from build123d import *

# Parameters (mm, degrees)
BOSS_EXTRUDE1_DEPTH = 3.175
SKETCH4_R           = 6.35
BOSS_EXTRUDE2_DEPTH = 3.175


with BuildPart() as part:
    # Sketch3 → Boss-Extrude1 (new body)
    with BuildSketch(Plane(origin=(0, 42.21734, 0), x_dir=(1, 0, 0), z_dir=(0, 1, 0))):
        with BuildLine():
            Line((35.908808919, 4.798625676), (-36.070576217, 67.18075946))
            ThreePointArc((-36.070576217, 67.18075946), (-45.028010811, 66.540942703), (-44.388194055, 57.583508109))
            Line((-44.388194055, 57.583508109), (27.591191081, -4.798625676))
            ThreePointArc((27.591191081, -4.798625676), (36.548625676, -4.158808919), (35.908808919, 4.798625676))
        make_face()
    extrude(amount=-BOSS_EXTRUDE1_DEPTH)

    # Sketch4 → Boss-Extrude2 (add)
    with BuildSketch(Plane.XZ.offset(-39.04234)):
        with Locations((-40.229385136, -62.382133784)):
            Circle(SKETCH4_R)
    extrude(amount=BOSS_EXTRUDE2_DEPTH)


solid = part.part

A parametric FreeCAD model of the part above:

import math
import FreeCAD as App
import Part
import Sketcher
Q = App.Units.Quantity

doc = App.newDocument("Part")
body = doc.addObject("PartDesign::Body", "Body")

# Sketch on XZ plane
sketch1 = body.newObject("Sketcher::SketchObject", "Sketch")
sketch1.AttachmentSupport = (doc.getObject("XZ_Plane"), [""])
sketch1.MapMode = "FlatFace"
sketch1.AttachmentOffset = App.Placement(App.Vector(0, 0, -1.6621 * 25.4), App.Rotation())
sketch1.addGeometry([
    Part.LineSegment(App.Vector(36, -5, 0), App.Vector(-36, -67, 0)),
    Part.ArcOfCircle(Part.Circle(App.Vector(-40, -62, 0), App.Vector(0, 0, 1), 6), math.radians(131), math.radians(311)),
    Part.LineSegment(App.Vector(-44, -58, 0), App.Vector(28, 5, 0)),
    Part.ArcOfCircle(Part.Circle(App.Vector(32, 0, 0), App.Vector(0, 0, 1), 6), math.radians(-49), math.radians(131)),
], False)
sketch1.addConstraint([
    Sketcher.Constraint("Tangent", 0, 2, 1, 2),
    Sketcher.Constraint("Tangent", 1, 1, 2, 1),
    Sketcher.Constraint("Tangent", 2, 2, 3, 2),
    Sketcher.Constraint("Tangent", 3, 1, 0, 1),
    Sketcher.Constraint("Equal", 1, 3),
    Sketcher.Constraint("PointOnObject", 3, 3, -1),
    Sketcher.Constraint("Radius", 1, Q("0.25 in")),
    Sketcher.Constraint("Distance", 0, Q("3.75 in")),
    Sketcher.Constraint("DistanceX", -1, 1, 3, 3, Q("1.25 in")),
    Sketcher.Constraint("DistanceY", 0, 2, -1, 1, Q("67.180759 mm")),
])
pad1 = body.newObject("PartDesign::Pad", "Pad")
pad1.Profile = sketch1
pad1.Length = Q("0.125 in")

# Sketch on XZ plane
sketch2 = body.newObject("Sketcher::SketchObject", "Sketch001")
sketch2.AttachmentSupport = (doc.getObject("XZ_Plane"), [""])
sketch2.MapMode = "FlatFace"
sketch2.AttachmentOffset = App.Placement(App.Vector(0, 0, -1.5371 * 25.4), App.Rotation())
sketch2.addGeometry(Part.Circle(App.Vector(-40, -62, 0), App.Vector(0, 0, 1), 6), False)
sketch2.addConstraint([
    Sketcher.Constraint("Diameter", 0, Q("0.5 in")),
    Sketcher.Constraint("DistanceX", 0, 3, -1, 1, Q("40.229385 mm")),
    Sketcher.Constraint("DistanceY", 0, 3, -1, 1, Q("62.382134 mm")),
])
pad2 = body.newObject("PartDesign::Pad", "Pad001")
pad2.Profile = sketch2
pad2.Length = Q("0.125 in")

doc.recompute()
